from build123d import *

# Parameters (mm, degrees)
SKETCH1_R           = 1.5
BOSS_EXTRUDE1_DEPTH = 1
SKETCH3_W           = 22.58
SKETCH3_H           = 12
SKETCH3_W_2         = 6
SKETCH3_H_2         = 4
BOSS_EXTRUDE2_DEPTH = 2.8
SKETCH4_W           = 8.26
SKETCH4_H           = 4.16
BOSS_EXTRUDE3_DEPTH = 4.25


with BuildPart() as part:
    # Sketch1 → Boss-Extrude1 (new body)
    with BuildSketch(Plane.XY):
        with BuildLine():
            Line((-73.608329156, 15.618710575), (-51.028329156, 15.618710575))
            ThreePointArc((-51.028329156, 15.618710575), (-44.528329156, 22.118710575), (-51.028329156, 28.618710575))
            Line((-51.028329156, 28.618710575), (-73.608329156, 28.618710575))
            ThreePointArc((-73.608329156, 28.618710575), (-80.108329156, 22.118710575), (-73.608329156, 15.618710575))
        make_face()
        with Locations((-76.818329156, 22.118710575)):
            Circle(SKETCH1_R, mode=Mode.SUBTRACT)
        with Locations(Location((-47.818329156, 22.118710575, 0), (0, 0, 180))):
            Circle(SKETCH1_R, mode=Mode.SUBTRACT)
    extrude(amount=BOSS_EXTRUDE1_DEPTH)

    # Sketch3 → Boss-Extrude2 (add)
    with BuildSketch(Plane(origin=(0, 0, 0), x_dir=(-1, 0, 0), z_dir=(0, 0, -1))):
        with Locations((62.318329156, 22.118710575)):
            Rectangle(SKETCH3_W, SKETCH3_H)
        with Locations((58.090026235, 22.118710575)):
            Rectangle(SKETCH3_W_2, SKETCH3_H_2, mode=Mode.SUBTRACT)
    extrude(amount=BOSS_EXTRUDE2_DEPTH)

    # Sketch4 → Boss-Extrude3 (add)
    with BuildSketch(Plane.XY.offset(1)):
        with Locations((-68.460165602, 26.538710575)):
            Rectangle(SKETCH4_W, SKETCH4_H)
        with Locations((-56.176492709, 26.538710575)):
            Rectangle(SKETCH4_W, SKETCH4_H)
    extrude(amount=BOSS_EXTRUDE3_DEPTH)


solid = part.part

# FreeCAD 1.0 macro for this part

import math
import FreeCAD as App
import Part
import Sketcher
Q = App.Units.Quantity


def add_polygon(sketch, points):
    """Adds a closed chain of lines whose ends are joined by coincident constraints."""
    first, n = sketch.GeometryCount, len(points)
    for a, b in zip(points, points[1:] + points[:1]):
        sketch.addGeometry(Part.LineSegment(App.Vector(*a, 0), App.Vector(*b, 0)), False)
    for i in range(n):
        sketch.addConstraint(Sketcher.Constraint("Coincident", first + i, 2, first + (i + 1) % n, 1))

doc = App.newDocument("Part")
body = doc.addObject("PartDesign::Body", "Body")

# Sketch on XY plane
sketch1 = doc.addObject("Sketcher::SketchObject", "Sketch")
body.addObject(sketch1)
sketch1.AttachmentSupport = (doc.XY_Plane, [""])
sketch1.MapMode = "FlatFace"
sketch1.addGeometry(Part.LineSegment(App.Vector(-73.608329, 15.618711, 0), App.Vector(-51.028329, 15.618711, 0)), False)
sketch1.addGeometry(Part.ArcOfCircle(Part.Circle(App.Vector(-51.028329, 22.118711, 0), App.Vector(0, 0, 1), 6.5), math.radians(-90), math.radians(90)), False)
sketch1.addGeometry(Part.LineSegment(App.Vector(-51.028329, 28.618711, 0), App.Vector(-73.608329, 28.618711, 0)), False)
sketch1.addGeometry(Part.ArcOfCircle(Part.Circle(App.Vector(-73.608329, 22.118711, 0), App.Vector(0, 0, 1), 6.5), math.radians(90), math.radians(270)), False)
sketch1.addGeometry(Part.Circle(App.Vector(-76.818329, 22.118711, 0), App.Vector(0, 0, 1), 1.5), False)
sketch1.addGeometry(Part.Circle(App.Vector(-47.818329, 22.118711, 0), App.Vector(0, 0, 1), 1.5), False)
sketch1.addConstraint(Sketcher.Constraint("Tangent", 0, 2, 1, 1))
sketch1.addConstraint(Sketcher.Constraint("Tangent", 1, 2, 2, 1))
sketch1.addConstraint(Sketcher.Constraint("Tangent", 2, 2, 3, 1))
sketch1.addConstraint(Sketcher.Constraint("Tangent", 3, 2, 0, 1))
sketch1.addConstraint(Sketcher.Constraint("Horizontal", 0))
sketch1.addConstraint(Sketcher.Constraint("Horizontal", 2))
sketch1.addConstraint(Sketcher.Constraint("Equal", 4, 5))
sketch1.addConstraint(Sketcher.Constraint("Horizontal", 3, 3, 4, 3))
sketch1.addConstraint(Sketcher.Constraint("Horizontal", 4, 3, 5, 3))
sketch1.addConstraint(Sketcher.Constraint("Diameter", 4, Q("3 mm")))
sketch1.addConstraint(Sketcher.Constraint("Radius", 1, Q("6.5 mm")))
sketch1.addConstraint(Sketcher.Constraint("DistanceX", 4, 3, 5, 3, Q("29 mm")))
sketch1.addConstraint(Sketcher.Constraint("DistanceX", 0, 1, 0, 2, Q("22.58 mm")))
sketch1.addConstraint(Sketcher.Constraint("DistanceX", 4, 3, 3, 3, Q("3.21 mm")))
sketch1.addConstraint(Sketcher.Constraint("DistanceX", 1, 3, -1, 1, Q("51.028329 mm")))
sketch1.addConstraint(Sketcher.Constraint("DistanceY", -1, 1, 1, 3, Q("22.118711 mm")))
pad1 = doc.addObject("PartDesign::Pad", "Pad")
body.addObject(pad1)
pad1.Profile = sketch1
pad1.Length = 1

# Sketch on XY plane
sketch2 = doc.addObject("Sketcher::SketchObject", "Sketch001")
body.addObject(sketch2)
sketch2.AttachmentSupport = (doc.XY_Plane, [""])
sketch2.MapMode = "FlatFace"
add_polygon(sketch2, [(-51.028329, 28.118711), (-51.028329, 16.118711), (-73.608329, 16.118711), (-73.608329, 28.118711)])  # lines 0-3
add_polygon(sketch2, [(-61.090026, 20.118711), (-55.090026, 20.118711), (-55.090026, 24.118711), (-61.090026, 24.118711)])  # lines 4-7
sketch2.addConstraint(Sketcher.Constraint("Vertical", 0))
sketch2.addConstraint(Sketcher.Constraint("Horizontal", 1))
sketch2.addConstraint(Sketcher.Constraint("Vertical", 2))
sketch2.addConstraint(Sketcher.Constraint("Horizontal", 3))
sketch2.addConstraint(Sketcher.Constraint("Horizontal", 4))
sketch2.addConstraint(Sketcher.Constraint("Vertical", 5))
sketch2.addConstraint(Sketcher.Constraint("Horizontal", 6))
sketch2.addConstraint(Sketcher.Constraint("Vertical", 7))
sketch2.addConstraint(Sketcher.Constraint("DistanceX", 4, 1, 4, 2, Q("6 mm")))
sketch2.addConstraint(Sketcher.Constraint("DistanceY", 0, 2, 0, 1, Q("12 mm")))
sketch2.addConstraint(Sketcher.Constraint("DistanceY", 5, 1, 5, 2, Q("4 mm")))
sketch2.addConstraint(Sketcher.Constraint("DistanceY", 0, 2, 4, 2, Q("4 mm")))
sketch2.addConstraint(Sketcher.Constraint("DistanceX", 1, 2, 1, 1, Q("22.58 mm")))
sketch2.addConstraint(Sketcher.Constraint("DistanceX", 0, 2, -1, 1, Q("51.028329 mm")))
sketch2.addConstraint(Sketcher.Constraint("DistanceY", -1, 1, 0, 2, Q("16.118711 mm")))
sketch2.addConstraint(Sketcher.Constraint("DistanceX", 4, 2, -1, 1, Q("55.090026 mm")))
pad2 = doc.addObject("PartDesign::Pad", "Pad001")
body.addObject(pad2)
pad2.Profile = sketch2
pad2.Length = 2.8
pad2.Reversed = True

# Sketch on XY plane
sketch3 = doc.addObject("Sketcher::SketchObject", "Sketch002")
body.addObject(sketch3)
sketch3.AttachmentSupport = (doc.XY_Plane, [""])
sketch3.MapMode = "FlatFace"
sketch3.AttachmentOffset = App.Placement(App.Vector(0, 0, 1), App.Rotation())
add_polygon(sketch3, [(-72.590166, 28.618711), (-72.590166, 24.458711), (-64.330166, 24.458711), (-64.330166, 28.618711)])  # lines 0-3
add_polygon(sketch3, [(-60.306493, 28.618711), (-60.306493, 24.458711), (-52.046493, 24.458711), (-52.046493, 28.618711)])  # lines 4-7
sketch3.addConstraint(Sketcher.Constraint("Vertical", 0))
sketch3.addConstraint(Sketcher.Constraint("Horizontal", 1))
sketch3.addConstraint(Sketcher.Constraint("Vertical", 2))
sketch3.addConstraint(Sketcher.Constraint("Horizontal", 3))
sketch3.addConstraint(Sketcher.Constraint("Vertical", 4))
sketch3.addConstraint(Sketcher.Constraint("Horizontal", 5))
sketch3.addConstraint(Sketcher.Constraint("Vertical", 6))
sketch3.addConstraint(Sketcher.Constraint("Horizontal", 7))
sketch3.addConstraint(Sketcher.Constraint("Horizontal", 1, 2, 4, 2))
sketch3.addConstraint(Sketcher.Constraint("Horizontal", 3, 2, 6, 2))
sketch3.addConstraint(Sketcher.Constraint("Equal", 3, 5))
sketch3.addConstraint(Sketcher.Constraint("DistanceX", 1, 1, 1, 2, Q("8.26 mm")))
sketch3.addConstraint(Sketcher.Constraint("DistanceY", 0, 2, 0, 1, Q("4.16 mm")))
sketch3.addConstraint(Sketcher.Constraint("DistanceY", -1, 1, 0, 2, Q("24.458711 mm")))
sketch3.addConstraint(Sketcher.Constraint("DistanceX", 0, 2, -1, 1, Q("72.590166 mm")))
sketch3.addConstraint(Sketcher.Constraint("DistanceX", 4, 2, -1, 1, Q("60.306493 mm")))
pad3 = doc.addObject("PartDesign::Pad", "Pad002")
body.addObject(pad3)
pad3.Profile = sketch3
pad3.Length = 4.25

doc.recompute()
